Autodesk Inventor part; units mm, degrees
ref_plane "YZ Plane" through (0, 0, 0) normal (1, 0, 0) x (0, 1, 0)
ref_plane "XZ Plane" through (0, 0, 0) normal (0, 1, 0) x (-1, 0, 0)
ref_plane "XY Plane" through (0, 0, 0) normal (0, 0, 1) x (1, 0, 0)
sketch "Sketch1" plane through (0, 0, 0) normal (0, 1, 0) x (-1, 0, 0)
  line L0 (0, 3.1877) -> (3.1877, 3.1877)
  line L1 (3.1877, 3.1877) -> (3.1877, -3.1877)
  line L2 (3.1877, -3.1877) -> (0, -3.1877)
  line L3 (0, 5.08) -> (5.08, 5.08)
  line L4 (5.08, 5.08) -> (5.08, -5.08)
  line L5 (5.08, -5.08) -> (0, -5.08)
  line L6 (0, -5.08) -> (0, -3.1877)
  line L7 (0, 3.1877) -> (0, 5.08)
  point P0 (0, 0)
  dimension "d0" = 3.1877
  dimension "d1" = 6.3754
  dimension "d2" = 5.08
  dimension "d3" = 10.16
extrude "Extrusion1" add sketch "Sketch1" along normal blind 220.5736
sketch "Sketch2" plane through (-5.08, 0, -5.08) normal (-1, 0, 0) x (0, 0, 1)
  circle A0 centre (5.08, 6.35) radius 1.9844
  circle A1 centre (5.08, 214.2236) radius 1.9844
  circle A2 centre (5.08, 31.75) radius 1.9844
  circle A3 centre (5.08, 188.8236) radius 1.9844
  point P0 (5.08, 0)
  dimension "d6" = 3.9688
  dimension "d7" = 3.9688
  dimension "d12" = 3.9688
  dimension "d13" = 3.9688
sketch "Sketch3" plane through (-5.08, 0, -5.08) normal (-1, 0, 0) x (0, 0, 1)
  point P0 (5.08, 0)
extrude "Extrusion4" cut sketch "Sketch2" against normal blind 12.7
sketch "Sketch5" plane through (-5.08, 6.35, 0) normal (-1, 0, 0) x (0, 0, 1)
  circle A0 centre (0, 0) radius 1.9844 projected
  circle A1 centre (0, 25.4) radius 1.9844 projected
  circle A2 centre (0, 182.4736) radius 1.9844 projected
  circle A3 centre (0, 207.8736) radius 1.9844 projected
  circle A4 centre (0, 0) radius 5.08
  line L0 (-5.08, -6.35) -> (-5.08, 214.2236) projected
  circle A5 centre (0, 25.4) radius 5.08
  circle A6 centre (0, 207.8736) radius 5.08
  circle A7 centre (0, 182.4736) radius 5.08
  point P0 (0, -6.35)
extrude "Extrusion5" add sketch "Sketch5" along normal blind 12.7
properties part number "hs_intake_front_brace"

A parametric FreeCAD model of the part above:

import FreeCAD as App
import Part
import Sketcher

V = App.Vector
Q = App.Units.Quantity

doc = App.newDocument("Part")
body = doc.addObject("PartDesign::Body", "Body")

# Sketch on XZ plane
sketch1 = body.newObject("Sketcher::SketchObject", "Sketch")
sketch1.AttachmentSupport = (doc.getObject("XZ_Plane"), [""])
sketch1.MapMode = "FlatFace"
sketch1.addGeometry(Part.LineSegment(V(0, 5.1, 0), V(0, 3.2, 0)), False)
sketch1.addGeometry(Part.LineSegment(V(0, 3.2, 0), V(-3.2, 3.2, 0)), False)
sketch1.addGeometry(Part.LineSegment(V(-3.2, 3.2, 0), V(-3.2, -3.2, 0)), False)
sketch1.addGeometry(Part.LineSegment(V(-3.2, -3.2, 0), V(0, -3.2, 0)), False)
sketch1.addGeometry(Part.LineSegment(V(0, -3.2, 0), V(0, -5.1, 0)), False)
sketch1.addGeometry(Part.LineSegment(V(0, -5.1, 0), V(-5.1, -5.1, 0)), False)
sketch1.addGeometry(Part.LineSegment(V(-5.1, -5.1, 0), V(-5.1, 5.1, 0)), False)
sketch1.addGeometry(Part.LineSegment(V(-5.1, 5.1, 0), V(0, 5.1, 0)), False)
sketch1.addConstraint(Sketcher.Constraint("Coincident", 0, 2, 1, 1))
sketch1.addConstraint(Sketcher.Constraint("Coincident", 1, 2, 2, 1))
sketch1.addConstraint(Sketcher.Constraint("Coincident", 2, 2, 3, 1))
sketch1.addConstraint(Sketcher.Constraint("Coincident", 3, 2, 4, 1))
sketch1.addConstraint(Sketcher.Constraint("Coincident", 4, 2, 5, 1))
sketch1.addConstraint(Sketcher.Constraint("Coincident", 5, 2, 6, 1))
sketch1.addConstraint(Sketcher.Constraint("Coincident", 6, 2, 7, 1))
sketch1.addConstraint(Sketcher.Constraint("Coincident", 7, 2, 0, 1))
sketch1.addConstraint(Sketcher.Constraint("Vertical", 0))
sketch1.addConstraint(Sketcher.Constraint("Horizontal", 1))
sketch1.addConstraint(Sketcher.Constraint("Vertical", 2))
sketch1.addConstraint(Sketcher.Constraint("Horizontal", 3))
sketch1.addConstraint(Sketcher.Constraint("Vertical", 4))
sketch1.addConstraint(Sketcher.Constraint("Horizontal", 5))
sketch1.addConstraint(Sketcher.Constraint("Vertical", 6))
sketch1.addConstraint(Sketcher.Constraint("Horizontal", 7))
sketch1.addConstraint(Sketcher.Constraint("Symmetric", 0, 2, 3, 2, -1, 1))
sketch1.addConstraint(Sketcher.Constraint("Symmetric", 4, 2, 7, 2, -1))
sketch1.addConstraint(Sketcher.Constraint("DistanceX", 5, 2, 5, 1, Q("0.2 in")))
sketch1.addConstraint(Sketcher.Constraint("DistanceY", 6, 1, 6, 2, Q("0.4 in")))
sketch1.addConstraint(Sketcher.Constraint("DistanceY", 2, 2, 2, 1, Q("0.251 in")))
sketch1.addConstraint(Sketcher.Constraint("DistanceX", 1, 2, 1, 1, Q("0.1255 in")))
pad1 = body.newObject("PartDesign::Pad", "Pad")
pad1.Profile = sketch1
pad1.Length = Q("8.684 in")
pad1.Reversed = True

# Sketch on YZ plane
sketch2 = body.newObject("Sketcher::SketchObject", "Sketch001")
sketch2.AttachmentSupport = (doc.getObject("YZ_Plane"), [""])
sketch2.MapMode = "FlatFace"
sketch2.AttachmentOffset = App.Placement(V(0, 0, -0.2 * 25.4), App.Rotation())
sketch2.addGeometry(Part.Circle(V(6.3, 0, 0), V(0, 0, 1), 2), False)
sketch2.addGeometry(Part.Circle(V(214.2, 0, 0), V(0, 0, 1), 2), False)
sketch2.addGeometry(Part.Circle(V(31.8, 0, 0), V(0, 0, 1), 2), False)
sketch2.addGeometry(Part.Circle(V(188.8, 0, 0), V(0, 0, 1), 2), False)
sketch2.addConstraint(Sketcher.Constraint("Equal", 0, 1))
sketch2.addConstraint(Sketcher.Constraint("Equal", 1, 2))
sketch2.addConstraint(Sketcher.Constraint("Equal", 2, 3))
sketch2.addConstraint(Sketcher.Constraint("PointOnObject", 0, 3, -1))
sketch2.addConstraint(Sketcher.Constraint("PointOnObject", 1, 3, -1))
sketch2.addConstraint(Sketcher.Constraint("PointOnObject", 2, 3, -1))
sketch2.addConstraint(Sketcher.Constraint("PointOnObject", 3, 3, -1))
sketch2.addConstraint(Sketcher.Constraint("Diameter", 0, Q("0.156252 in")))
sketch2.addConstraint(Sketcher.Constraint("DistanceX", 0, 3, 2, 3, Q("1 in")))
sketch2.addConstraint(Sketcher.Constraint("DistanceX", 3, 3, 1, 3, Q("1 in")))
sketch2.addConstraint(Sketcher.Constraint("DistanceX", -1, 1, 0, 3, Q("0.25 in")))
sketch2.addConstraint(Sketcher.Constraint("DistanceX", -1, 1, 1, 3, Q("8.434 in")))
pocket1 = body.newObject("PartDesign::Pocket", "Pocket")
pocket1.Profile = sketch2
pocket1.Length = Q("0.5 in")
pocket1.Reversed = True

# Sketch on YZ plane
sketch3 = body.newObject("Sketcher::SketchObject", "Sketch002")
sketch3.AttachmentSupport = (doc.getObject("YZ_Plane"), [""])
sketch3.MapMode = "FlatFace"
sketch3.AttachmentOffset = App.Placement(V(0, 0, -0.2 * 25.4), App.Rotation())
sketch3.addGeometry(Part.Circle(V(6.3, 0, 0), V(0, 0, 1), 5.1), False)
sketch3.addGeometry(Part.Circle(V(6.3, 0, 0), V(0, 0, 1), 2), False)
sketch3.addGeometry(Part.Circle(V(214.2, 0, 0), V(0, 0, 1), 5.1), False)
sketch3.addGeometry(Part.Circle(V(214.2, 0, 0), V(0, 0, 1), 2), False)
sketch3.addGeometry(Part.Circle(V(188.8, 0, 0), V(0, 0, 1), 5.1), False)
sketch3.addGeometry(Part.Circle(V(188.8, 0, 0), V(0, 0, 1), 2), False)
sketch3.addGeometry(Part.Circle(V(31.8, 0, 0), V(0, 0, 1), 5.1), False)
sketch3.addGeometry(Part.Circle(V(31.8, 0, 0), V(0, 0, 1), 2), False)
sketch3.addConstraint(Sketcher.Constraint("Coincident", 1, 3, 0, 3))
sketch3.addConstraint(Sketcher.Constraint("Coincident", 3, 3, 2, 3))
sketch3.addConstraint(Sketcher.Constraint("Coincident", 5, 3, 4, 3))
sketch3.addConstraint(Sketcher.Constraint("Coincident", 7, 3, 6, 3))
sketch3.addConstraint(Sketcher.Constraint("Equal", 0, 2))
sketch3.addConstraint(Sketcher.Constraint("Equal", 1, 3))
sketch3.addConstraint(Sketcher.Constraint("Equal", 2, 4))
sketch3.addConstraint(Sketcher.Constraint("Equal", 3, 5))
sketch3.addConstraint(Sketcher.Constraint("Equal", 4, 6))
sketch3.addConstraint(Sketcher.Constraint("Equal", 5, 7))
sketch3.addConstraint(Sketcher.Constraint("PointOnObject", 0, 3, -1))
sketch3.addConstraint(Sketcher.Constraint("PointOnObject", 2, 3, -1))
sketch3.addConstraint(Sketcher.Constraint("PointOnObject", 4, 3, -1))
sketch3.addConstraint(Sketcher.Constraint("PointOnObject", 6, 3, -1))
sketch3.addConstraint(Sketcher.Constraint("Diameter", 0, Q("0.4 in")))
sketch3.addConstraint(Sketcher.Constraint("Diameter", 1, Q("0.156252 in")))
sketch3.addConstraint(Sketcher.Constraint("DistanceX", 4, 3, 2, 3, Q("1 in")))
sketch3.addConstraint(Sketcher.Constraint("DistanceX", 0, 3, 6, 3, Q("1 in")))
sketch3.addConstraint(Sketcher.Constraint("DistanceX", -1, 1, 0, 3, Q("0.25 in")))
sketch3.addConstraint(Sketcher.Constraint("DistanceX", -1, 1, 2, 3, Q("8.434 in")))
pad2 = body.newObject("PartDesign::Pad", "Pad001")
pad2.Profile = sketch3
pad2.Length = Q("0.5 in")
pad2.Reversed = True

doc.recompute()
